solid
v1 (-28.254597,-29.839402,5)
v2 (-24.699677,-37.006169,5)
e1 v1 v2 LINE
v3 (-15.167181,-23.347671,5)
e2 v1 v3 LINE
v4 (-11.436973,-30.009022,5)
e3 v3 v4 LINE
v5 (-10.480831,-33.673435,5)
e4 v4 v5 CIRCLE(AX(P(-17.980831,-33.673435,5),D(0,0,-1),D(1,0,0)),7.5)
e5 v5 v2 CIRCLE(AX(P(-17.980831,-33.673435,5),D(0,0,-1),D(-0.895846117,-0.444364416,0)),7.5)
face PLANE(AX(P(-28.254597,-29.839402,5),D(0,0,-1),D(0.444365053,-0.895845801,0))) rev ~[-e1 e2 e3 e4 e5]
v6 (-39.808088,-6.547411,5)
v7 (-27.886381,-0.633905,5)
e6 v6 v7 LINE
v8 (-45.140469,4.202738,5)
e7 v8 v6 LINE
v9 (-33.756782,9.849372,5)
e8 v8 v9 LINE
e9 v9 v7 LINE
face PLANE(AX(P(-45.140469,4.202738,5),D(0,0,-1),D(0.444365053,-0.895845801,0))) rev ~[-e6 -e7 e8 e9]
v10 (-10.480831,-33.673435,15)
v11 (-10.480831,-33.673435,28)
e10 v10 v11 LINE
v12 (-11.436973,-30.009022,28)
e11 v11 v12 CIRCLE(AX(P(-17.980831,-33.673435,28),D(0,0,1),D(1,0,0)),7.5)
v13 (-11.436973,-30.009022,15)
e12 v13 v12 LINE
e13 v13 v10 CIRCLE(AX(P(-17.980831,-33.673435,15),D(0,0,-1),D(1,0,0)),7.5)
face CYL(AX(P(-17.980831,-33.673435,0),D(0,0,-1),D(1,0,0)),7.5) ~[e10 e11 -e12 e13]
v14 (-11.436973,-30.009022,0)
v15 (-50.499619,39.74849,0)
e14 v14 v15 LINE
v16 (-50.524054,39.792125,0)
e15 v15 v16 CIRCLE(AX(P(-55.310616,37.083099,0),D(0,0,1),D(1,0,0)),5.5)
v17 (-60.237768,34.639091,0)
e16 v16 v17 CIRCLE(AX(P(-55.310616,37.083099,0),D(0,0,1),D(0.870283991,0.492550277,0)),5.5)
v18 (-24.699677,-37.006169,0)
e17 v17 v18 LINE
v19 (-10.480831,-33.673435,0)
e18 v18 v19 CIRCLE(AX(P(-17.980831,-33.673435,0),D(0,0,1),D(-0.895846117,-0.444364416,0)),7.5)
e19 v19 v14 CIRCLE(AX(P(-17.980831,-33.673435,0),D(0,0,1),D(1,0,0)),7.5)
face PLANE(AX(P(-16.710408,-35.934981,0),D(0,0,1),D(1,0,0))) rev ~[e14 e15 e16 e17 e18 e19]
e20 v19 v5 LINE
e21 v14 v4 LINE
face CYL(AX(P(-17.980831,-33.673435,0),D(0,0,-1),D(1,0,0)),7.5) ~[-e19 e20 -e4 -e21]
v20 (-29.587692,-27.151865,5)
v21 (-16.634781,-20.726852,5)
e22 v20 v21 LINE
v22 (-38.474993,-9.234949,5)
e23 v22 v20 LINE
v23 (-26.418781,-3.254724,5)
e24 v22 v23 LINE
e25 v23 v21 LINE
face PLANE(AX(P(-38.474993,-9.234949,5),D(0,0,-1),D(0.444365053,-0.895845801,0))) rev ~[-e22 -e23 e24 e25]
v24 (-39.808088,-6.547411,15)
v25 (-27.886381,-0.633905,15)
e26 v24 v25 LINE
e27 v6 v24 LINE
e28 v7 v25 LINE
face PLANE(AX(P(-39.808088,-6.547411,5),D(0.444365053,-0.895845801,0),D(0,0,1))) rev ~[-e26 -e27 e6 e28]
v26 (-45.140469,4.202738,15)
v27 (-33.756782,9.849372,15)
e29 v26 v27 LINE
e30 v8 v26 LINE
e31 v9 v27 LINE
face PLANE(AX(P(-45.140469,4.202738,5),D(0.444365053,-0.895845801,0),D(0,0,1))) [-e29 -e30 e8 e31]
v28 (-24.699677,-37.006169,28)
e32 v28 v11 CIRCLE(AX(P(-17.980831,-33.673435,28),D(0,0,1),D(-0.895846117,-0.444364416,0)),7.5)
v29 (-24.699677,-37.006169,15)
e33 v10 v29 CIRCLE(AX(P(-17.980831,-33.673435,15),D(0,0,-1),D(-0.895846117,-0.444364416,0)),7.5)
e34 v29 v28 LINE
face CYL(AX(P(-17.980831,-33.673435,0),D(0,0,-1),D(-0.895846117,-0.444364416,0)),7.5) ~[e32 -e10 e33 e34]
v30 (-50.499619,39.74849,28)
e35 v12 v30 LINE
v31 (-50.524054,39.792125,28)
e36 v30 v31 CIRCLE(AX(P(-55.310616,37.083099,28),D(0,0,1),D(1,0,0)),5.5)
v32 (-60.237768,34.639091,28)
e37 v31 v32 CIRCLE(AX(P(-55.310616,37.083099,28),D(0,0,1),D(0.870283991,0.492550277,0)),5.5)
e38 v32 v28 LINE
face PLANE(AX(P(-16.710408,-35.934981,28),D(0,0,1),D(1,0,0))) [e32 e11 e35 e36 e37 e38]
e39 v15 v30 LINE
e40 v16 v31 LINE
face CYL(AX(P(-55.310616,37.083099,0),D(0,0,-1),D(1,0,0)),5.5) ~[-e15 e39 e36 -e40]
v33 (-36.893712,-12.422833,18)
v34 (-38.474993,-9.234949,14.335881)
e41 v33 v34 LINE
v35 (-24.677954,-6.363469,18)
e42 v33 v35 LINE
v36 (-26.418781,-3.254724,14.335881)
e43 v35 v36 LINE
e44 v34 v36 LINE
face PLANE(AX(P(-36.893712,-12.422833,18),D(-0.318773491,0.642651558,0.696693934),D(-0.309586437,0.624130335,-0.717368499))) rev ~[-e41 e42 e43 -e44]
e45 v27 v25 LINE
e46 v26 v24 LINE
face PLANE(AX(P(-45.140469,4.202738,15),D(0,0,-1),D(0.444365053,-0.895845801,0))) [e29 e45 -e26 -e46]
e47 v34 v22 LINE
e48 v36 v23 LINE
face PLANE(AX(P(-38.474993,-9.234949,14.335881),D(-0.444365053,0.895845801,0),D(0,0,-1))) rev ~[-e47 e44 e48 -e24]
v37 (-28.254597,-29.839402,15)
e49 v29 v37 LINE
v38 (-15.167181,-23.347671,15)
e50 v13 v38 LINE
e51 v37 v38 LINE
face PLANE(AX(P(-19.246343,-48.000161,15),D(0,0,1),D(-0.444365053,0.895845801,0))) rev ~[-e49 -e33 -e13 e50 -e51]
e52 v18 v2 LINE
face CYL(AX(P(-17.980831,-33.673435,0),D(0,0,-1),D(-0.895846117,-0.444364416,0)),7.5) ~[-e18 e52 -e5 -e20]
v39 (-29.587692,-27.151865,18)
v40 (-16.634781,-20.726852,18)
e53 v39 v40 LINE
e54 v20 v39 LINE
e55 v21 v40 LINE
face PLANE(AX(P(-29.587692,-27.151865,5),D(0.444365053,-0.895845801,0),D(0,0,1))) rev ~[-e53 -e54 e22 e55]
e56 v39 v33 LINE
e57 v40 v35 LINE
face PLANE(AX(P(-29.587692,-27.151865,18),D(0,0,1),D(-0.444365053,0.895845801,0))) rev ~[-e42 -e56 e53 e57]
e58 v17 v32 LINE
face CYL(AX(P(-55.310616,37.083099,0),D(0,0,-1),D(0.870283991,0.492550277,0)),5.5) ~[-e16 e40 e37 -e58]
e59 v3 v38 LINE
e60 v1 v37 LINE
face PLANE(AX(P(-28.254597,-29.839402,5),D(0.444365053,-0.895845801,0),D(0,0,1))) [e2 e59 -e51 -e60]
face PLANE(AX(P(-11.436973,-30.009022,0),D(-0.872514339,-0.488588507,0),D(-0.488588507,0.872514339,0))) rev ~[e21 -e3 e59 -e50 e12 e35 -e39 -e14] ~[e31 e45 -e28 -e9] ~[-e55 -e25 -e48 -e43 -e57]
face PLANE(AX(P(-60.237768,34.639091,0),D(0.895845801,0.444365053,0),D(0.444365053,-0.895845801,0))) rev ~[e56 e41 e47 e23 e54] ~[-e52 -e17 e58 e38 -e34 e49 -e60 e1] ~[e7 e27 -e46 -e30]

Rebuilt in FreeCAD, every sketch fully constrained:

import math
import FreeCAD as App
import Part
import Sketcher
from FreeCAD import Vector

doc = App.newDocument("Part")
body = doc.addObject("PartDesign::Body", "Body")

# Sketch on XY plane
sketch1 = body.newObject("Sketcher::SketchObject", "Sketch")
sketch1.AttachmentSupport = (doc.getObject("XY_Plane"), [""])
sketch1.MapMode = "FlatFace"
sketch1.addGeometry([
    Part.LineSegment(Vector(-60.237768, 34.639091, 0), Vector(-24.699677, -37.006169, 0)),  # 0
    Part.ArcOfCircle(Part.Circle(Vector(-17.980831, -33.673435, 0), Vector(0, 0, 1), 7.5), math.radians(-153.617319), math.radians(0)),  # 1
    Part.ArcOfCircle(Part.Circle(Vector(-17.980831, -33.673435, 0), Vector(0, 0, 1), 7.5), math.radians(0), math.radians(29.24785)),  # 2
    Part.LineSegment(Vector(-11.436973, -30.009022, 0), Vector(-50.499619, 39.74849, 0)),  # 3
    Part.ArcOfCircle(Part.Circle(Vector(-55.310616, 37.083099, 0), Vector(0, 0, 1), 5.5), math.radians(28.987359), math.radians(29.508342)),  # 4
    Part.ArcOfCircle(Part.Circle(Vector(-55.310616, 37.083099, 0), Vector(0, 0, 1), 5.5), math.radians(29.508342), math.radians(206.382722)),  # 5
], False)
sketch1.addConstraint([
    Sketcher.Constraint("Coincident", 0, 2, 1, 1),
    Sketcher.Constraint("Coincident", 1, 2, 2, 1),
    Sketcher.Constraint("Coincident", 2, 2, 3, 1),
    Sketcher.Constraint("Coincident", 3, 2, 4, 1),
    Sketcher.Constraint("Coincident", 4, 2, 5, 1),
    Sketcher.Constraint("Coincident", 5, 2, 0, 1),
    Sketcher.Constraint("Coincident", 2, 3, 1, 3),
    Sketcher.Constraint("Coincident", 5, 3, 4, 3),
    Sketcher.Constraint("Radius", 1, 7.5),
    Sketcher.Constraint("Radius", 4, 5.5),
    Sketcher.Constraint("DistanceY", -1, 1, 4, 3, 37.083099),
    Sketcher.Constraint("DistanceY", 5, 2, 3, 2, 5.109399),
    Sketcher.Constraint("Distance", 0, 79.974991),
    Sketcher.Constraint("Distance", 3, 79.949989),
    Sketcher.Constraint("DistanceX", 1, 3, -1, 1, 17.980831),
    Sketcher.Constraint("DistanceY", 0, 2, -1, 1, 37.006169),
    Sketcher.Constraint("DistanceY", 2, 2, -1, 1, 30.009022),
    Sketcher.Constraint("DistanceX", 3, 2, -1, 1, 50.499619),
    Sketcher.Constraint("DistanceX", 5, 3, 4, 2, 4.786562),
    Sketcher.Constraint("DistanceY", 1, 2, -1, 1, 33.673435),
])
pad1 = body.newObject("PartDesign::Pad", "Pad")
pad1.Profile = sketch1
pad1.Length = 28

# Sketch on an angled plane
sketch2 = body.newObject("Sketcher::SketchObject", "Sketch001")
sketch2.Placement = App.Placement(Vector(-34.553982, -17.13976, 0), App.Rotation(Vector(0.444365053, -0.895845801, 0), Vector(0, 0, 0.999999999), Vector(-0.895845801, -0.444365053, 0), "ZXY"))
sketch2.addGeometry([
    Part.LineSegment(Vector(14.176148, 15, 0), Vector(14.176148, 5, 0)),
    Part.LineSegment(Vector(14.176148, 5, 0), Vector(34.448341, 5, 0)),
    Part.LineSegment(Vector(34.448341, 5, 0), Vector(34.448341, 15, 0)),
    Part.LineSegment(Vector(34.448341, 15, 0), Vector(14.176148, 15, 0)),
], False)
sketch2.addConstraint([
    Sketcher.Constraint("Coincident", 0, 2, 1, 1),
    Sketcher.Constraint("Coincident", 1, 2, 2, 1),
    Sketcher.Constraint("Coincident", 2, 2, 3, 1),
    Sketcher.Constraint("Coincident", 3, 2, 0, 1),
    Sketcher.Constraint("Vertical", 0),
    Sketcher.Constraint("Horizontal", 1),
    Sketcher.Constraint("Vertical", 2),
    Sketcher.Constraint("Horizontal", 3),
    Sketcher.Constraint("DistanceY", 0, 2, 0, 1, 10.0),
    Sketcher.Constraint("DistanceY", -1, 1, 0, 2, 5.0),
    Sketcher.Constraint("DistanceX", 1, 1, 1, 2, 20.272193),
    Sketcher.Constraint("DistanceX", -1, 1, 1, 2, 34.448341),
])
pocket1 = body.newObject("PartDesign::Pocket", "Pocket")
pocket1.Profile = sketch2
pocket1.Length = 25

# Sketch on an angled plane
sketch3 = body.newObject("Sketcher::SketchObject", "Sketch002")
sketch3.Placement = App.Placement(Vector(-34.553982, -17.13976, 0), App.Rotation(Vector(0.444365053, -0.895845801, 0), Vector(0, 0, 0.999999999), Vector(-0.895845801, -0.444365053, 0), "ZXY"))
sketch3.addGeometry([
    Part.LineSegment(Vector(-8.823852, 5, 0), Vector(11.176148, 5, 0)),  # 0
    Part.LineSegment(Vector(11.176148, 5, 0), Vector(11.176148, 18, 0)),  # 1
    Part.LineSegment(Vector(11.176148, 18, 0), Vector(-5.265333, 18, 0)),  # 2
    Part.LineSegment(Vector(-5.265333, 18, 0), Vector(-8.823852, 14.335881, 0)),  # 3
    Part.LineSegment(Vector(-8.823852, 14.335881, 0), Vector(-8.823852, 5, 0)),  # 4
], False)
sketch3.addConstraint([
    Sketcher.Constraint("Coincident", 0, 2, 1, 1),
    Sketcher.Constraint("Coincident", 1, 2, 2, 1),
    Sketcher.Constraint("Coincident", 2, 2, 3, 1),
    Sketcher.Constraint("Coincident", 3, 2, 4, 1),
    Sketcher.Constraint("Coincident", 4, 2, 0, 1),
    Sketcher.Constraint("Horizontal", 0),
    Sketcher.Constraint("Vertical", 1),
    Sketcher.Constraint("Horizontal", 2),
    Sketcher.Constraint("Vertical", 4),
    Sketcher.Constraint("DistanceX", 0, 1, 0, 2, 20.0),
    Sketcher.Constraint("DistanceY", 1, 1, 1, 2, 13.0),
    Sketcher.Constraint("DistanceY", -1, 1, 0, 2, 5.0),
    Sketcher.Constraint("DistanceX", 2, 2, 2, 1, 16.441481),
    Sketcher.Constraint("DistanceY", 4, 2, 4, 1, 9.335881),
    Sketcher.Constraint("DistanceX", -1, 1, 0, 2, 11.176148),
])
pocket2 = body.newObject("PartDesign::Pocket", "Pocket001")
pocket2.Profile = sketch3
pocket2.Length = 25

# Sketch on an angled plane
sketch4 = body.newObject("Sketcher::SketchObject", "Sketch003")
sketch4.Placement = App.Placement(Vector(-34.553982, -17.13976, 0), App.Rotation(Vector(0.444365053, -0.895845801, 0), Vector(0, 0, 0.999999999), Vector(-0.895845801, -0.444365053, 0), "ZXY"))
sketch4.addGeometry([
    Part.LineSegment(Vector(-23.823852, 15, 0), Vector(-23.823852, 5, 0)),
    Part.LineSegment(Vector(-23.823852, 5, 0), Vector(-11.823852, 5, 0)),
    Part.LineSegment(Vector(-11.823852, 5, 0), Vector(-11.823852, 15, 0)),
    Part.LineSegment(Vector(-11.823852, 15, 0), Vector(-23.823852, 15, 0)),
], False)
sketch4.addConstraint([
    Sketcher.Constraint("Coincident", 0, 2, 1, 1),
    Sketcher.Constraint("Coincident", 1, 2, 2, 1),
    Sketcher.Constraint("Coincident", 2, 2, 3, 1),
    Sketcher.Constraint("Coincident", 3, 2, 0, 1),
    Sketcher.Constraint("Vertical", 0),
    Sketcher.Constraint("Horizontal", 1),
    Sketcher.Constraint("Vertical", 2),
    Sketcher.Constraint("Horizontal", 3),
    Sketcher.Constraint("DistanceX", 1, 1, 1, 2, 12.0),
    Sketcher.Constraint("DistanceY", 0, 2, 0, 1, 10.0),
    Sketcher.Constraint("DistanceY", -1, 1, 0, 2, 5.0),
    Sketcher.Constraint("DistanceX", 0, 2, -1, 1, 23.823852),
])
pocket3 = body.newObject("PartDesign::Pocket", "Pocket002")
pocket3.Profile = sketch4
pocket3.Length = 25

doc.recompute()
